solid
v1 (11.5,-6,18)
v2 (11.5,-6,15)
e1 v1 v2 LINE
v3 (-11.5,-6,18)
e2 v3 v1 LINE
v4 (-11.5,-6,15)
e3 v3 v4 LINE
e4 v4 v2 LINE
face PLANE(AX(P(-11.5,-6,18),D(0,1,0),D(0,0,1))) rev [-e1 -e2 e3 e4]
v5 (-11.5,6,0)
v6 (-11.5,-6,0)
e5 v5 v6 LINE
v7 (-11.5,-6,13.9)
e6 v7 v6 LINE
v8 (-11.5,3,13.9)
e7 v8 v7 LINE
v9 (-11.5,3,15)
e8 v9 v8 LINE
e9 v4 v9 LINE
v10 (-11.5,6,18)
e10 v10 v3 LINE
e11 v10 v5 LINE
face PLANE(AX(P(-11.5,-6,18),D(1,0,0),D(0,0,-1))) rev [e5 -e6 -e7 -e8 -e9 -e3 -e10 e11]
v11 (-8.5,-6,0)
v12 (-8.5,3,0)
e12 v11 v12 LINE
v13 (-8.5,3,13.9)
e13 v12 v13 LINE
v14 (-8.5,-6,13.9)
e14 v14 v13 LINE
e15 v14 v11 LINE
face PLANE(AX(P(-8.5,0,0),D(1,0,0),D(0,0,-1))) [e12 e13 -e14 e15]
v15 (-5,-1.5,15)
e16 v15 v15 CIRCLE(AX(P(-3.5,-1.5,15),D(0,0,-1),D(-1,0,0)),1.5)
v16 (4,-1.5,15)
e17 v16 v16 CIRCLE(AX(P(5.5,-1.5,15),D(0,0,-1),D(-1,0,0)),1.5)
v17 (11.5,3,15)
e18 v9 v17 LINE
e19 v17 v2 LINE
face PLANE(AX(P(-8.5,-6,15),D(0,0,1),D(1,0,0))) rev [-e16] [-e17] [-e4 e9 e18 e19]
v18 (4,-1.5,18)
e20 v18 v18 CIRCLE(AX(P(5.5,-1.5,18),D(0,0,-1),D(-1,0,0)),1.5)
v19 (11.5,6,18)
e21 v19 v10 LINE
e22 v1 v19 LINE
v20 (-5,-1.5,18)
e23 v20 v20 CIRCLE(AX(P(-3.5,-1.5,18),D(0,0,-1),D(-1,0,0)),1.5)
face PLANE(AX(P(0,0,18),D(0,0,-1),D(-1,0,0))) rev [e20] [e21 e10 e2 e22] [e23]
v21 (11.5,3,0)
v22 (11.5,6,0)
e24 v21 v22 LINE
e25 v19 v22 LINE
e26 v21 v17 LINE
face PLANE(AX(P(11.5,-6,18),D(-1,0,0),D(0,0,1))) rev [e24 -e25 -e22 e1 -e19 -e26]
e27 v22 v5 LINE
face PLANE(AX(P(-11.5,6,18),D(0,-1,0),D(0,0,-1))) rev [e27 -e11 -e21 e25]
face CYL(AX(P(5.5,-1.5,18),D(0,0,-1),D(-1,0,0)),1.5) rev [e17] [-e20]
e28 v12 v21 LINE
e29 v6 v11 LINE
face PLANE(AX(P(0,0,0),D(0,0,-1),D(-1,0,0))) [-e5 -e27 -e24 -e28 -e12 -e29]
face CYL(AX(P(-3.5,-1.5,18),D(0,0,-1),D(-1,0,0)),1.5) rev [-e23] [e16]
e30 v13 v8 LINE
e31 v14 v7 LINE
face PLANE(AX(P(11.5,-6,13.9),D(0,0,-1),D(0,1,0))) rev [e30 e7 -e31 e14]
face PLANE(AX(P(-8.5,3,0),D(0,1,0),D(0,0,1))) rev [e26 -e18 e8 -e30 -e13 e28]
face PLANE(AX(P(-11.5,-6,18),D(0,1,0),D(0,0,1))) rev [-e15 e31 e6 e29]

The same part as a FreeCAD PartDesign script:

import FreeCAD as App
import Part
import Sketcher
from FreeCAD import Vector
Q = App.Units.Quantity

doc = App.newDocument("Part")
body = doc.addObject("PartDesign::Body", "Body")

# Sketch on XY plane
sketch1 = body.newObject("Sketcher::SketchObject", "Sketch")
sketch1.AttachmentSupport = (doc.getObject("XY_Plane"), [""])
sketch1.MapMode = "FlatFace"
sketch1.addGeometry(Part.LineSegment(Vector(-11.5, 6, 0), Vector(-11.5, -6, 0)), False)
sketch1.addGeometry(Part.LineSegment(Vector(-11.5, -6, 0), Vector(11.5, -6, 0)), False)
sketch1.addGeometry(Part.LineSegment(Vector(11.5, -6, 0), Vector(11.5, 6, 0)), False)
sketch1.addGeometry(Part.LineSegment(Vector(11.5, 6, 0), Vector(-11.5, 6, 0)), False)
sketch1.addConstraint(Sketcher.Constraint("Coincident", 0, 2, 1, 1))
sketch1.addConstraint(Sketcher.Constraint("Coincident", 1, 2, 2, 1))
sketch1.addConstraint(Sketcher.Constraint("Coincident", 2, 2, 3, 1))
sketch1.addConstraint(Sketcher.Constraint("Coincident", 3, 2, 0, 1))
sketch1.addConstraint(Sketcher.Constraint("Vertical", 0))
sketch1.addConstraint(Sketcher.Constraint("Horizontal", 1))
sketch1.addConstraint(Sketcher.Constraint("Vertical", 2))
sketch1.addConstraint(Sketcher.Constraint("Horizontal", 3))
sketch1.addConstraint(Sketcher.Constraint("Symmetric", 0, 2, 2, 2, -1, 1))
sketch1.addConstraint(Sketcher.Constraint("DistanceX", 1, 1, 1, 2, Q("23 mm")))
sketch1.addConstraint(Sketcher.Constraint("DistanceY", 0, 2, 0, 1, Q("12 mm")))
pad1 = body.newObject("PartDesign::Pad", "Pad")
pad1.Profile = sketch1
pad1.Length = 18

# Sketch on YZ plane
sketch2 = body.newObject("Sketcher::SketchObject", "Sketch001")
sketch2.AttachmentSupport = (doc.getObject("YZ_Plane"), [""])
sketch2.MapMode = "FlatFace"
sketch2.AttachmentOffset = App.Placement(Vector(0, 0, 11.5), App.Rotation())
sketch2.addGeometry(Part.LineSegment(Vector(3, 15, 0), Vector(-6, 15, 0)), False)
sketch2.addGeometry(Part.LineSegment(Vector(-6, 15, 0), Vector(-6, 0, 0)), False)
sketch2.addGeometry(Part.LineSegment(Vector(-6, 0, 0), Vector(3, 0, 0)), False)
sketch2.addGeometry(Part.LineSegment(Vector(3, 0, 0), Vector(3, 15, 0)), False)
sketch2.addConstraint(Sketcher.Constraint("Coincident", 0, 2, 1, 1))
sketch2.addConstraint(Sketcher.Constraint("Coincident", 1, 2, 2, 1))
sketch2.addConstraint(Sketcher.Constraint("Coincident", 2, 2, 3, 1))
sketch2.addConstraint(Sketcher.Constraint("Coincident", 3, 2, 0, 1))
sketch2.addConstraint(Sketcher.Constraint("Horizontal", 0))
sketch2.addConstraint(Sketcher.Constraint("Vertical", 1))
sketch2.addConstraint(Sketcher.Constraint("Horizontal", 2))
sketch2.addConstraint(Sketcher.Constraint("Vertical", 3))
sketch2.addConstraint(Sketcher.Constraint("PointOnObject", 1, 2, -1))
sketch2.addConstraint(Sketcher.Constraint("DistanceX", 0, 2, 0, 1, Q("9 mm")))
sketch2.addConstraint(Sketcher.Constraint("DistanceY", 1, 2, 1, 1, Q("15 mm")))
sketch2.addConstraint(Sketcher.Constraint("DistanceX", 0, 2, -1, 1, Q("6 mm")))
pocket1 = body.newObject("PartDesign::Pocket", "Pocket")
pocket1.Profile = sketch2
pocket1.Length = 20

# Sketch on YZ plane
sketch3 = body.newObject("Sketcher::SketchObject", "Sketch002")
sketch3.AttachmentSupport = (doc.getObject("YZ_Plane"), [""])
sketch3.MapMode = "FlatFace"
sketch3.AttachmentOffset = App.Placement(Vector(0, 0, -11.5), App.Rotation())
sketch3.addGeometry(Part.LineSegment(Vector(3, 13.9, 0), Vector(-6, 13.9, 0)), False)
sketch3.addGeometry(Part.LineSegment(Vector(-6, 13.9, 0), Vector(-6, 15, 0)), False)
sketch3.addGeometry(Part.LineSegment(Vector(-6, 15, 0), Vector(3, 15, 0)), False)
sketch3.addGeometry(Part.LineSegment(Vector(3, 15, 0), Vector(3, 13.9, 0)), False)
sketch3.addConstraint(Sketcher.Constraint("Coincident", 0, 2, 1, 1))
sketch3.addConstraint(Sketcher.Constraint("Coincident", 1, 2, 2, 1))
sketch3.addConstraint(Sketcher.Constraint("Coincident", 2, 2, 3, 1))
sketch3.addConstraint(Sketcher.Constraint("Coincident", 3, 2, 0, 1))
sketch3.addConstraint(Sketcher.Constraint("Horizontal", 0))
sketch3.addConstraint(Sketcher.Constraint("Vertical", 1))
sketch3.addConstraint(Sketcher.Constraint("Horizontal", 2))
sketch3.addConstraint(Sketcher.Constraint("Vertical", 3))
sketch3.addConstraint(Sketcher.Constraint("DistanceX", 0, 2, 0, 1, Q("9 mm")))
sketch3.addConstraint(Sketcher.Constraint("DistanceY", 1, 1, 1, 2, Q("1.1 mm")))
sketch3.addConstraint(Sketcher.Constraint("DistanceX", 0, 2, -1, 1, Q("6 mm")))
sketch3.addConstraint(Sketcher.Constraint("DistanceY", -1, 1, 1, 2, Q("15 mm")))
pocket2 = body.newObject("PartDesign::Pocket", "Pocket001")
pocket2.Profile = sketch3
pocket2.Type = "ThroughAll"
pocket2.Reversed = True

# Sketch on XY plane
sketch4 = body.newObject("Sketcher::SketchObject", "Sketch003")
sketch4.AttachmentSupport = (doc.getObject("XY_Plane"), [""])
sketch4.MapMode = "FlatFace"
sketch4.AttachmentOffset = App.Placement(Vector(0, 0, 15), App.Rotation())
sketch4.addGeometry(Part.Circle(Vector(5.5, -1.5, 0), Vector(0, 0, 1), 1.5), False)
sketch4.addGeometry(Part.Circle(Vector(-3.5, -1.5, 0), Vector(0, 0, 1), 1.5), False)
sketch4.addConstraint(Sketcher.Constraint("Equal", 0, 1))
sketch4.addConstraint(Sketcher.Constraint("Horizontal", 0, 3, 1, 3))
sketch4.addConstraint(Sketcher.Constraint("Diameter", 0, Q("3 mm")))
sketch4.addConstraint(Sketcher.Constraint("DistanceX", 1, 3, 0, 3, Q("9 mm")))
sketch4.addConstraint(Sketcher.Constraint("DistanceX", -1, 1, 0, 3, Q("5.5 mm")))
sketch4.addConstraint(Sketcher.Constraint("DistanceY", 0, 3, -1, 1, Q("1.5 mm")))
pocket3 = body.newObject("PartDesign::Pocket", "Pocket002")
pocket3.Profile = sketch4
pocket3.Type = "ThroughAll"
pocket3.Reversed = True

doc.recompute()
